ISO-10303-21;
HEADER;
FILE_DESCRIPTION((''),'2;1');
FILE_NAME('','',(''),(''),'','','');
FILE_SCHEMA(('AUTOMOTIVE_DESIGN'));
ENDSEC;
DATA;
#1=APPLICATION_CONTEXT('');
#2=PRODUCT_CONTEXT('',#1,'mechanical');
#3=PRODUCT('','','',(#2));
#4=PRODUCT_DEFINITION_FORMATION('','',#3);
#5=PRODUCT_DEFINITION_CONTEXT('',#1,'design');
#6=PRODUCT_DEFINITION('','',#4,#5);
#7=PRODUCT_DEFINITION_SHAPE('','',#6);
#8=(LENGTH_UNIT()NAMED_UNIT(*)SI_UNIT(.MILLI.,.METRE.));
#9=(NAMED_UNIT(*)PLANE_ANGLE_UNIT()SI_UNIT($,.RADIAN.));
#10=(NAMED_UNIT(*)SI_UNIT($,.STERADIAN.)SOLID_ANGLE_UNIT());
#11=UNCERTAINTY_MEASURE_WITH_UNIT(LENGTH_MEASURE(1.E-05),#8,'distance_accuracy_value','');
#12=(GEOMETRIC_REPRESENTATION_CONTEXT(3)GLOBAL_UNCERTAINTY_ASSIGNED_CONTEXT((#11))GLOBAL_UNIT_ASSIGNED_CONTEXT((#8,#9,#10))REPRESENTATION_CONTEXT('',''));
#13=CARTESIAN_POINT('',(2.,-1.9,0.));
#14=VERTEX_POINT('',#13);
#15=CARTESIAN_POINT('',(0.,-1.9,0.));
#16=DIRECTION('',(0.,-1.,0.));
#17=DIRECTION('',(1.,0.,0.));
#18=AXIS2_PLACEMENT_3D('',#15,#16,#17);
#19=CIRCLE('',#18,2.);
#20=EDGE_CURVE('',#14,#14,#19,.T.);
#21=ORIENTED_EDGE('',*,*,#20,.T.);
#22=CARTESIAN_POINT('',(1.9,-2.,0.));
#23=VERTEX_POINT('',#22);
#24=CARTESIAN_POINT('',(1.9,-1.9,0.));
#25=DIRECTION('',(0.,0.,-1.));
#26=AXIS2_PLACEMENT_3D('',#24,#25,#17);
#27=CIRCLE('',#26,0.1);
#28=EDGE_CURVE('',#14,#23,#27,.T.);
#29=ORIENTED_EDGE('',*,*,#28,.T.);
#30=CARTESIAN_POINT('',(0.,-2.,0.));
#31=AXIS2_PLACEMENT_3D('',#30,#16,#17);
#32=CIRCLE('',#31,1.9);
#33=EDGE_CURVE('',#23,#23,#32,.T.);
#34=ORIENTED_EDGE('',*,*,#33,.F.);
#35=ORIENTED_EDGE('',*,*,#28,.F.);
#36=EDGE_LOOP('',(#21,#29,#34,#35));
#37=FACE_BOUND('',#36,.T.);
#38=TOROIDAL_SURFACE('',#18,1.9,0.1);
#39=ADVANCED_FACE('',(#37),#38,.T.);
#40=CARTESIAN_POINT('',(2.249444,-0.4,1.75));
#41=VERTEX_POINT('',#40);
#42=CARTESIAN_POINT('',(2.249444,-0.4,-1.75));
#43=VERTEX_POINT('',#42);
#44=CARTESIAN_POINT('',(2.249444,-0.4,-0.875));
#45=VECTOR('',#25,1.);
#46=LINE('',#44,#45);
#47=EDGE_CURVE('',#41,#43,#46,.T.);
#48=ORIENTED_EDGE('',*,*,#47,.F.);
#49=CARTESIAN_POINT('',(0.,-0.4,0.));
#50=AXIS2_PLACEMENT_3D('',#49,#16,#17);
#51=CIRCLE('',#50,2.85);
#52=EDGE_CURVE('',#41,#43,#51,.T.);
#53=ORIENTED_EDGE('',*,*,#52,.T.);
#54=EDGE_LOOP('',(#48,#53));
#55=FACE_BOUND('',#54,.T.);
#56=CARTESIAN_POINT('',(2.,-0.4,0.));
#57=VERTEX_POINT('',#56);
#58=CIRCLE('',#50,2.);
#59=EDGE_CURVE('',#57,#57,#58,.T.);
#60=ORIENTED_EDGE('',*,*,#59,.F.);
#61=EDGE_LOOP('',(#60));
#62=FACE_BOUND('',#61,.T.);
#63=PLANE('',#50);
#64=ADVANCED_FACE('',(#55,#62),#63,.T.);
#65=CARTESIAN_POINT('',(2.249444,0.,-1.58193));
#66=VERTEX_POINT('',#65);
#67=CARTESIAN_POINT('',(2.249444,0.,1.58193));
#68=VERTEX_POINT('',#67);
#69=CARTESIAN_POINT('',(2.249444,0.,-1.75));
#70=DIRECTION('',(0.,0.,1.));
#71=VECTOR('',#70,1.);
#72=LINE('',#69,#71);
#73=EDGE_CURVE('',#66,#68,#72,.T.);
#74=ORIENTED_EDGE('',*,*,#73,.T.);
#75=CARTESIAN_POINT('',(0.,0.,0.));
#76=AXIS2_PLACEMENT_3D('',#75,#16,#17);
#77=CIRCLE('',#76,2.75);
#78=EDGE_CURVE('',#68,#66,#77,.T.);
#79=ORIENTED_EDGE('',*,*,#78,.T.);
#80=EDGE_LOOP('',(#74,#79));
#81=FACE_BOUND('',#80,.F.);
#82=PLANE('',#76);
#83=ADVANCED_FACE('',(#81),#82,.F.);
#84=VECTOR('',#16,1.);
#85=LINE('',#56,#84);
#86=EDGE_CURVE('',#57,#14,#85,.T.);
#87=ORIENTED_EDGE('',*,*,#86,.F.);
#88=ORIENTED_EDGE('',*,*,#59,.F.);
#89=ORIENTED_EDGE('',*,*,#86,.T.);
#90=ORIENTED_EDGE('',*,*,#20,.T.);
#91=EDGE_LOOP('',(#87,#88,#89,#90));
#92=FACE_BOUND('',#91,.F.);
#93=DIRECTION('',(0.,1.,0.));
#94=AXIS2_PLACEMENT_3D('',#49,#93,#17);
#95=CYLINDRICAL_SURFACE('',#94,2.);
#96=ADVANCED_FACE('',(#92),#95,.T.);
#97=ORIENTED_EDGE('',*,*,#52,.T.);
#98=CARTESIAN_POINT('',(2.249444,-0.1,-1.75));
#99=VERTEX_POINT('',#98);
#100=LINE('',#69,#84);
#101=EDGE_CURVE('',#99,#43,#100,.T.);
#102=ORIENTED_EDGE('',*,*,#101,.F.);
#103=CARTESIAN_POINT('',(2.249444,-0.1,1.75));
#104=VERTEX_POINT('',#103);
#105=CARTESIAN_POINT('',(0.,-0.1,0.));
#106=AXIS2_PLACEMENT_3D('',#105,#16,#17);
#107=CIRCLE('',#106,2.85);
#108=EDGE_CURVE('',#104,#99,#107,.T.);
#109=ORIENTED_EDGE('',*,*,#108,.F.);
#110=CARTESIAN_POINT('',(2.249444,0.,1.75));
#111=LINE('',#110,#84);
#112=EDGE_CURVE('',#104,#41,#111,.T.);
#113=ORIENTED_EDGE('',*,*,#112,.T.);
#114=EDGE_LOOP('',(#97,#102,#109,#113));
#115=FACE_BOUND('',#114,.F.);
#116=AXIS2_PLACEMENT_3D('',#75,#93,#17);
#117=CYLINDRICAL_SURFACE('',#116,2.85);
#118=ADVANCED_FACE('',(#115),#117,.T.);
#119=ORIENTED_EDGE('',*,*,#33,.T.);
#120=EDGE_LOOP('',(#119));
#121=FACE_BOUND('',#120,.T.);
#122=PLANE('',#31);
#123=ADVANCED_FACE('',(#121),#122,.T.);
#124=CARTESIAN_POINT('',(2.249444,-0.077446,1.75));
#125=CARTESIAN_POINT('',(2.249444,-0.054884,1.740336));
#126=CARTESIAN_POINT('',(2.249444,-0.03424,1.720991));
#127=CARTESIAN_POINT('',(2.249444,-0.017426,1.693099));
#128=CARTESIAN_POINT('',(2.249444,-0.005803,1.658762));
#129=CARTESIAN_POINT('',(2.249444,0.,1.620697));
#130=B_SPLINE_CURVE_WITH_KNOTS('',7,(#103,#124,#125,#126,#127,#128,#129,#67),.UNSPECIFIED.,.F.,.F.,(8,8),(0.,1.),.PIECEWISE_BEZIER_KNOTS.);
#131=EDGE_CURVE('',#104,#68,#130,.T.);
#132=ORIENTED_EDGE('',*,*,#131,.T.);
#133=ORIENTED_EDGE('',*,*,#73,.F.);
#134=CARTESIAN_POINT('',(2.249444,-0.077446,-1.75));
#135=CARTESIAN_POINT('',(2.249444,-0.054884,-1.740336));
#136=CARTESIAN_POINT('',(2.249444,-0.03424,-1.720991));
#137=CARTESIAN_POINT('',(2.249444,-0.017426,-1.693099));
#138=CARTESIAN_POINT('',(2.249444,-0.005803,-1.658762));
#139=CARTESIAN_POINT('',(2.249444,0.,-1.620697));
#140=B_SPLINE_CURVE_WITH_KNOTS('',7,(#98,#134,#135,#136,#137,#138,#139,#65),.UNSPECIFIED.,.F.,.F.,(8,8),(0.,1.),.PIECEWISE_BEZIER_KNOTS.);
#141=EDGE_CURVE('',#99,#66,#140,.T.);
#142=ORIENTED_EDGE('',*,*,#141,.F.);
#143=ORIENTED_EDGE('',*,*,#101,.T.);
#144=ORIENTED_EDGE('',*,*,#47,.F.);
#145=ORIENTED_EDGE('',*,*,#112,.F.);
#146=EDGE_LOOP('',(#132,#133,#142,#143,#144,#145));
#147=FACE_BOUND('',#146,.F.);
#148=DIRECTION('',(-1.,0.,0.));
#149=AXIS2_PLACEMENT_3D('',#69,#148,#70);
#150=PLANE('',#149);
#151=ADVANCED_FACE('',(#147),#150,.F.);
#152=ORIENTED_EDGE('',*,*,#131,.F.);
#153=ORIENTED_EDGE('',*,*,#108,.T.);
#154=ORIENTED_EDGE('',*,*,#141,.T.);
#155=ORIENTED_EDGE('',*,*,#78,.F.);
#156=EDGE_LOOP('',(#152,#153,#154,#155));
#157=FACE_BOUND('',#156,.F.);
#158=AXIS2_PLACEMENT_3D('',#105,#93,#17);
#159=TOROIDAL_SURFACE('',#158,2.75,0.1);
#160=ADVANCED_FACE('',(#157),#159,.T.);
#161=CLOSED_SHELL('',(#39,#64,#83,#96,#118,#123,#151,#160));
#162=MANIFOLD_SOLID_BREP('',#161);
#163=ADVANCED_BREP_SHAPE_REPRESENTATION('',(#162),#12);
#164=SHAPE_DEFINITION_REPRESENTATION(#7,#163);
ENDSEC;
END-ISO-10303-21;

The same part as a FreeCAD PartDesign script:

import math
import FreeCAD as App
import Part
import Sketcher
from FreeCAD import Vector
Q = App.Units.Quantity


def edges_at(feature, points):
    """Names of the edges that pass closest to the given points."""
    edges = feature.Shape.Edges
    near = lambda p: min(range(len(edges)), key=lambda i: edges[i].distToShape(Part.Vertex(*p))[0])
    return sorted({f"Edge{near(p) + 1}" for p in points})

doc = App.newDocument("Part")
body = doc.addObject("PartDesign::Body", "Body")

sketch1 = body.newObject("Sketcher::SketchObject", "Sketch")
sketch1.AttachmentSupport = (doc.getObject("XZ_Plane"), [""])
sketch1.MapMode = "FlatFace"
sketch1.addGeometry(Part.Circle(Vector(0, 0, 0), Vector(0, 0, 1), 2.9), False)
sketch1.addConstraint(Sketcher.Constraint("Coincident", 0, 3, -1, 1))
sketch1.addConstraint(Sketcher.Constraint("Diameter", 0, Q("5.7 mm")))
pad1 = body.newObject("PartDesign::Pad", "Pad")
pad1.Profile = sketch1
pad1.Length = 0.4

sketch2 = body.newObject("Sketcher::SketchObject", "Sketch001")
sketch2.AttachmentSupport = (doc.getObject("XZ_Plane"), [""])
sketch2.MapMode = "FlatFace"
sketch2.AttachmentOffset = App.Placement(Vector(0, 0, 0.4), App.Rotation())
sketch2.addGeometry(Part.Circle(Vector(0, 0, 0), Vector(0, 0, 1), 2), False)
sketch2.addConstraint(Sketcher.Constraint("Coincident", 0, 3, -1, 1))
sketch2.addConstraint(Sketcher.Constraint("Diameter", 0, Q("4 mm")))
pad2 = body.newObject("PartDesign::Pad", "Pad001")
pad2.Profile = sketch2
pad2.Length = 1.6
doc.recompute()

fillet = body.newObject("PartDesign::Fillet", "Fillet")
fillet.Base = (pad2, edges_at(pad2, [(-2, -2, 0), (-2.85, 0, 0)]))
fillet.Radius = 0.1

sketch3 = body.newObject("Sketcher::SketchObject", "Sketch002")
sketch3.AttachmentSupport = (doc.getObject("XZ_Plane"), [""])
sketch3.MapMode = "FlatFace"
sketch3.addGeometry(Part.LineSegment(Vector(2.2, -1.8, 0), Vector(2.2, 1.8, 0)), False)
sketch3.addGeometry(Part.ArcOfCircle(Part.Circle(Vector(0, 0, 0), Vector(0, 0, 1), 2.8), math.radians(-38), math.radians(38)), False)
sketch3.addConstraint(Sketcher.Constraint("Coincident", 0, 1, 1, 1))
sketch3.addConstraint(Sketcher.Constraint("Coincident", 1, 2, 0, 2))
sketch3.addConstraint(Sketcher.Constraint("Vertical", 0))
sketch3.addConstraint(Sketcher.Constraint("Coincident", 1, 3, -1, 1))
sketch3.addConstraint(Sketcher.Constraint("Radius", 1, Q("2.849999 mm")))
sketch3.addConstraint(Sketcher.Constraint("DistanceY", 0, 1, 0, 2, Q("3.5 mm")))
pocket1 = body.newObject("PartDesign::Pocket", "Pocket")
pocket1.Profile = sketch3
pocket1.Length = 25
pocket1.Reversed = True

doc.recompute()
